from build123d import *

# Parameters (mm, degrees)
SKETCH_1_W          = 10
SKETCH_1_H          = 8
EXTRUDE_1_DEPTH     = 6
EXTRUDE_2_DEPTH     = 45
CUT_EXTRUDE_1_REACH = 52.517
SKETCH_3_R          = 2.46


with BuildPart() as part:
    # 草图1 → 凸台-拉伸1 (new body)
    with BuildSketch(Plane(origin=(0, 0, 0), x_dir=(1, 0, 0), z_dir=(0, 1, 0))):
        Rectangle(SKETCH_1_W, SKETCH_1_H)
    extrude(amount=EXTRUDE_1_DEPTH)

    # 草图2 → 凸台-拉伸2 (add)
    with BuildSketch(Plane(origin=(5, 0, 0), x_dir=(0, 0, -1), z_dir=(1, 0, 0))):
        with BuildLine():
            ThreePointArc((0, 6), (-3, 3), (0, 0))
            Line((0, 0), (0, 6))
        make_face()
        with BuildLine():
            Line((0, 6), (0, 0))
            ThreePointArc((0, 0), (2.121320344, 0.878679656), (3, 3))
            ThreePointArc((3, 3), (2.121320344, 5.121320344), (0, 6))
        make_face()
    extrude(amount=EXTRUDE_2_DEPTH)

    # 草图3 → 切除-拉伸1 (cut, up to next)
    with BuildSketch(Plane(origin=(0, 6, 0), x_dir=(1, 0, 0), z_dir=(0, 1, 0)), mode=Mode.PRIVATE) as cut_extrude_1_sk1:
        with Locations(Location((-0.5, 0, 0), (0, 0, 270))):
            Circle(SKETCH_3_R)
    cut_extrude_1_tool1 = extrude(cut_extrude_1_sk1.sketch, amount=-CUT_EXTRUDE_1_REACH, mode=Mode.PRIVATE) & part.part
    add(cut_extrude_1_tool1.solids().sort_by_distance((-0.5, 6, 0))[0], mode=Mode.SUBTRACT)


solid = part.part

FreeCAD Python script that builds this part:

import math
import FreeCAD as App
import Part
import Sketcher
Q = App.Units.Quantity


def add_polygon(sketch, points):
    """Adds a closed chain of lines whose ends are joined by coincident constraints."""
    first, n = sketch.GeometryCount, len(points)
    for a, b in zip(points, points[1:] + points[:1]):
        sketch.addGeometry(Part.LineSegment(App.Vector(*a, 0), App.Vector(*b, 0)), False)
    for i in range(n):
        sketch.addConstraint(Sketcher.Constraint("Coincident", first + i, 2, first + (i + 1) % n, 1))

doc = App.newDocument("Part")
body = doc.addObject("PartDesign::Body", "Body")

# Sketch on XZ plane
sketch1 = body.newObject("Sketcher::SketchObject", "Sketch")
sketch1.AttachmentSupport = (doc.getObject("XZ_Plane"), [""])
sketch1.MapMode = "FlatFace"
add_polygon(sketch1, [(-5, -4), (-5, 4), (5, 4), (5, -4)])  # lines 0-3
sketch1.addConstraint(Sketcher.Constraint("Vertical", 0))
sketch1.addConstraint(Sketcher.Constraint("Horizontal", 1))
sketch1.addConstraint(Sketcher.Constraint("Vertical", 2))
sketch1.addConstraint(Sketcher.Constraint("Horizontal", 3))
sketch1.addConstraint(Sketcher.Constraint("Symmetric", 0, 2, 2, 2, -1, 1))
sketch1.addConstraint(Sketcher.Constraint("DistanceX", 1, 1, 1, 2, Q("10 mm")))
sketch1.addConstraint(Sketcher.Constraint("DistanceY", 0, 1, 0, 2, Q("8 mm")))
pad1 = body.newObject("PartDesign::Pad", "Pad")
pad1.Profile = sketch1
pad1.Length = 6
pad1.Reversed = True

# Sketch on YZ plane
sketch2 = body.newObject("Sketcher::SketchObject", "Sketch001")
sketch2.AttachmentSupport = (doc.getObject("YZ_Plane"), [""])
sketch2.MapMode = "FlatFace"
sketch2.AttachmentOffset = App.Placement(App.Vector(0, 0, 5), App.Rotation())
sketch2.addGeometry(Part.ArcOfCircle(Part.Circle(App.Vector(3, 0, 0), App.Vector(0, 0, 1), 3), math.radians(0), math.radians(180)), False)
sketch2.addGeometry(Part.ArcOfCircle(Part.Circle(App.Vector(3, 0, 0), App.Vector(0, 0, 1), 3), math.radians(180), math.radians(270)), False)
sketch2.addGeometry(Part.ArcOfCircle(Part.Circle(App.Vector(3, 0, 0), App.Vector(0, 0, 1), 3), math.radians(-90), math.radians(0)), False)
sketch2.addConstraint(Sketcher.Constraint("Tangent", 0, 2, 1, 1))
sketch2.addConstraint(Sketcher.Constraint("Tangent", 1, 2, 2, 1))
sketch2.addConstraint(Sketcher.Constraint("Tangent", 2, 2, 0, 1))
sketch2.addConstraint(Sketcher.Constraint("Coincident", 0, 2, -1, 1))
sketch2.addConstraint(Sketcher.Constraint("PointOnObject", 0, 3, -1))
sketch2.addConstraint(Sketcher.Constraint("PointOnObject", 2, 2, -1))
sketch2.addConstraint(Sketcher.Constraint("Vertical", 2, 3, 1, 2))
sketch2.addConstraint(Sketcher.Constraint("Radius", 0, Q("3 mm")))
pad2 = body.newObject("PartDesign::Pad", "Pad001")
pad2.Profile = sketch2
pad2.Length = 45

# Sketch on XZ plane
sketch3 = body.newObject("Sketcher::SketchObject", "Sketch002")
sketch3.AttachmentSupport = (doc.getObject("XZ_Plane"), [""])
sketch3.MapMode = "FlatFace"
sketch3.AttachmentOffset = App.Placement(App.Vector(0, 0, -6), App.Rotation())
sketch3.addGeometry(Part.Circle(App.Vector(-0.5, 0, 0), App.Vector(0, 0, 1), 2.5), False)
sketch3.addConstraint(Sketcher.Constraint("PointOnObject", 0, 3, -1))
sketch3.addConstraint(Sketcher.Constraint("Diameter", 0, Q("4.92 mm")))
sketch3.addConstraint(Sketcher.Constraint("DistanceX", 0, 3, -1, 1, Q("0.5 mm")))
pocket1 = body.newObject("PartDesign::Pocket", "Pocket")
pocket1.Profile = sketch3
pocket1.Type = "UpToFirst"
pocket1.Reversed = True

doc.recompute()
